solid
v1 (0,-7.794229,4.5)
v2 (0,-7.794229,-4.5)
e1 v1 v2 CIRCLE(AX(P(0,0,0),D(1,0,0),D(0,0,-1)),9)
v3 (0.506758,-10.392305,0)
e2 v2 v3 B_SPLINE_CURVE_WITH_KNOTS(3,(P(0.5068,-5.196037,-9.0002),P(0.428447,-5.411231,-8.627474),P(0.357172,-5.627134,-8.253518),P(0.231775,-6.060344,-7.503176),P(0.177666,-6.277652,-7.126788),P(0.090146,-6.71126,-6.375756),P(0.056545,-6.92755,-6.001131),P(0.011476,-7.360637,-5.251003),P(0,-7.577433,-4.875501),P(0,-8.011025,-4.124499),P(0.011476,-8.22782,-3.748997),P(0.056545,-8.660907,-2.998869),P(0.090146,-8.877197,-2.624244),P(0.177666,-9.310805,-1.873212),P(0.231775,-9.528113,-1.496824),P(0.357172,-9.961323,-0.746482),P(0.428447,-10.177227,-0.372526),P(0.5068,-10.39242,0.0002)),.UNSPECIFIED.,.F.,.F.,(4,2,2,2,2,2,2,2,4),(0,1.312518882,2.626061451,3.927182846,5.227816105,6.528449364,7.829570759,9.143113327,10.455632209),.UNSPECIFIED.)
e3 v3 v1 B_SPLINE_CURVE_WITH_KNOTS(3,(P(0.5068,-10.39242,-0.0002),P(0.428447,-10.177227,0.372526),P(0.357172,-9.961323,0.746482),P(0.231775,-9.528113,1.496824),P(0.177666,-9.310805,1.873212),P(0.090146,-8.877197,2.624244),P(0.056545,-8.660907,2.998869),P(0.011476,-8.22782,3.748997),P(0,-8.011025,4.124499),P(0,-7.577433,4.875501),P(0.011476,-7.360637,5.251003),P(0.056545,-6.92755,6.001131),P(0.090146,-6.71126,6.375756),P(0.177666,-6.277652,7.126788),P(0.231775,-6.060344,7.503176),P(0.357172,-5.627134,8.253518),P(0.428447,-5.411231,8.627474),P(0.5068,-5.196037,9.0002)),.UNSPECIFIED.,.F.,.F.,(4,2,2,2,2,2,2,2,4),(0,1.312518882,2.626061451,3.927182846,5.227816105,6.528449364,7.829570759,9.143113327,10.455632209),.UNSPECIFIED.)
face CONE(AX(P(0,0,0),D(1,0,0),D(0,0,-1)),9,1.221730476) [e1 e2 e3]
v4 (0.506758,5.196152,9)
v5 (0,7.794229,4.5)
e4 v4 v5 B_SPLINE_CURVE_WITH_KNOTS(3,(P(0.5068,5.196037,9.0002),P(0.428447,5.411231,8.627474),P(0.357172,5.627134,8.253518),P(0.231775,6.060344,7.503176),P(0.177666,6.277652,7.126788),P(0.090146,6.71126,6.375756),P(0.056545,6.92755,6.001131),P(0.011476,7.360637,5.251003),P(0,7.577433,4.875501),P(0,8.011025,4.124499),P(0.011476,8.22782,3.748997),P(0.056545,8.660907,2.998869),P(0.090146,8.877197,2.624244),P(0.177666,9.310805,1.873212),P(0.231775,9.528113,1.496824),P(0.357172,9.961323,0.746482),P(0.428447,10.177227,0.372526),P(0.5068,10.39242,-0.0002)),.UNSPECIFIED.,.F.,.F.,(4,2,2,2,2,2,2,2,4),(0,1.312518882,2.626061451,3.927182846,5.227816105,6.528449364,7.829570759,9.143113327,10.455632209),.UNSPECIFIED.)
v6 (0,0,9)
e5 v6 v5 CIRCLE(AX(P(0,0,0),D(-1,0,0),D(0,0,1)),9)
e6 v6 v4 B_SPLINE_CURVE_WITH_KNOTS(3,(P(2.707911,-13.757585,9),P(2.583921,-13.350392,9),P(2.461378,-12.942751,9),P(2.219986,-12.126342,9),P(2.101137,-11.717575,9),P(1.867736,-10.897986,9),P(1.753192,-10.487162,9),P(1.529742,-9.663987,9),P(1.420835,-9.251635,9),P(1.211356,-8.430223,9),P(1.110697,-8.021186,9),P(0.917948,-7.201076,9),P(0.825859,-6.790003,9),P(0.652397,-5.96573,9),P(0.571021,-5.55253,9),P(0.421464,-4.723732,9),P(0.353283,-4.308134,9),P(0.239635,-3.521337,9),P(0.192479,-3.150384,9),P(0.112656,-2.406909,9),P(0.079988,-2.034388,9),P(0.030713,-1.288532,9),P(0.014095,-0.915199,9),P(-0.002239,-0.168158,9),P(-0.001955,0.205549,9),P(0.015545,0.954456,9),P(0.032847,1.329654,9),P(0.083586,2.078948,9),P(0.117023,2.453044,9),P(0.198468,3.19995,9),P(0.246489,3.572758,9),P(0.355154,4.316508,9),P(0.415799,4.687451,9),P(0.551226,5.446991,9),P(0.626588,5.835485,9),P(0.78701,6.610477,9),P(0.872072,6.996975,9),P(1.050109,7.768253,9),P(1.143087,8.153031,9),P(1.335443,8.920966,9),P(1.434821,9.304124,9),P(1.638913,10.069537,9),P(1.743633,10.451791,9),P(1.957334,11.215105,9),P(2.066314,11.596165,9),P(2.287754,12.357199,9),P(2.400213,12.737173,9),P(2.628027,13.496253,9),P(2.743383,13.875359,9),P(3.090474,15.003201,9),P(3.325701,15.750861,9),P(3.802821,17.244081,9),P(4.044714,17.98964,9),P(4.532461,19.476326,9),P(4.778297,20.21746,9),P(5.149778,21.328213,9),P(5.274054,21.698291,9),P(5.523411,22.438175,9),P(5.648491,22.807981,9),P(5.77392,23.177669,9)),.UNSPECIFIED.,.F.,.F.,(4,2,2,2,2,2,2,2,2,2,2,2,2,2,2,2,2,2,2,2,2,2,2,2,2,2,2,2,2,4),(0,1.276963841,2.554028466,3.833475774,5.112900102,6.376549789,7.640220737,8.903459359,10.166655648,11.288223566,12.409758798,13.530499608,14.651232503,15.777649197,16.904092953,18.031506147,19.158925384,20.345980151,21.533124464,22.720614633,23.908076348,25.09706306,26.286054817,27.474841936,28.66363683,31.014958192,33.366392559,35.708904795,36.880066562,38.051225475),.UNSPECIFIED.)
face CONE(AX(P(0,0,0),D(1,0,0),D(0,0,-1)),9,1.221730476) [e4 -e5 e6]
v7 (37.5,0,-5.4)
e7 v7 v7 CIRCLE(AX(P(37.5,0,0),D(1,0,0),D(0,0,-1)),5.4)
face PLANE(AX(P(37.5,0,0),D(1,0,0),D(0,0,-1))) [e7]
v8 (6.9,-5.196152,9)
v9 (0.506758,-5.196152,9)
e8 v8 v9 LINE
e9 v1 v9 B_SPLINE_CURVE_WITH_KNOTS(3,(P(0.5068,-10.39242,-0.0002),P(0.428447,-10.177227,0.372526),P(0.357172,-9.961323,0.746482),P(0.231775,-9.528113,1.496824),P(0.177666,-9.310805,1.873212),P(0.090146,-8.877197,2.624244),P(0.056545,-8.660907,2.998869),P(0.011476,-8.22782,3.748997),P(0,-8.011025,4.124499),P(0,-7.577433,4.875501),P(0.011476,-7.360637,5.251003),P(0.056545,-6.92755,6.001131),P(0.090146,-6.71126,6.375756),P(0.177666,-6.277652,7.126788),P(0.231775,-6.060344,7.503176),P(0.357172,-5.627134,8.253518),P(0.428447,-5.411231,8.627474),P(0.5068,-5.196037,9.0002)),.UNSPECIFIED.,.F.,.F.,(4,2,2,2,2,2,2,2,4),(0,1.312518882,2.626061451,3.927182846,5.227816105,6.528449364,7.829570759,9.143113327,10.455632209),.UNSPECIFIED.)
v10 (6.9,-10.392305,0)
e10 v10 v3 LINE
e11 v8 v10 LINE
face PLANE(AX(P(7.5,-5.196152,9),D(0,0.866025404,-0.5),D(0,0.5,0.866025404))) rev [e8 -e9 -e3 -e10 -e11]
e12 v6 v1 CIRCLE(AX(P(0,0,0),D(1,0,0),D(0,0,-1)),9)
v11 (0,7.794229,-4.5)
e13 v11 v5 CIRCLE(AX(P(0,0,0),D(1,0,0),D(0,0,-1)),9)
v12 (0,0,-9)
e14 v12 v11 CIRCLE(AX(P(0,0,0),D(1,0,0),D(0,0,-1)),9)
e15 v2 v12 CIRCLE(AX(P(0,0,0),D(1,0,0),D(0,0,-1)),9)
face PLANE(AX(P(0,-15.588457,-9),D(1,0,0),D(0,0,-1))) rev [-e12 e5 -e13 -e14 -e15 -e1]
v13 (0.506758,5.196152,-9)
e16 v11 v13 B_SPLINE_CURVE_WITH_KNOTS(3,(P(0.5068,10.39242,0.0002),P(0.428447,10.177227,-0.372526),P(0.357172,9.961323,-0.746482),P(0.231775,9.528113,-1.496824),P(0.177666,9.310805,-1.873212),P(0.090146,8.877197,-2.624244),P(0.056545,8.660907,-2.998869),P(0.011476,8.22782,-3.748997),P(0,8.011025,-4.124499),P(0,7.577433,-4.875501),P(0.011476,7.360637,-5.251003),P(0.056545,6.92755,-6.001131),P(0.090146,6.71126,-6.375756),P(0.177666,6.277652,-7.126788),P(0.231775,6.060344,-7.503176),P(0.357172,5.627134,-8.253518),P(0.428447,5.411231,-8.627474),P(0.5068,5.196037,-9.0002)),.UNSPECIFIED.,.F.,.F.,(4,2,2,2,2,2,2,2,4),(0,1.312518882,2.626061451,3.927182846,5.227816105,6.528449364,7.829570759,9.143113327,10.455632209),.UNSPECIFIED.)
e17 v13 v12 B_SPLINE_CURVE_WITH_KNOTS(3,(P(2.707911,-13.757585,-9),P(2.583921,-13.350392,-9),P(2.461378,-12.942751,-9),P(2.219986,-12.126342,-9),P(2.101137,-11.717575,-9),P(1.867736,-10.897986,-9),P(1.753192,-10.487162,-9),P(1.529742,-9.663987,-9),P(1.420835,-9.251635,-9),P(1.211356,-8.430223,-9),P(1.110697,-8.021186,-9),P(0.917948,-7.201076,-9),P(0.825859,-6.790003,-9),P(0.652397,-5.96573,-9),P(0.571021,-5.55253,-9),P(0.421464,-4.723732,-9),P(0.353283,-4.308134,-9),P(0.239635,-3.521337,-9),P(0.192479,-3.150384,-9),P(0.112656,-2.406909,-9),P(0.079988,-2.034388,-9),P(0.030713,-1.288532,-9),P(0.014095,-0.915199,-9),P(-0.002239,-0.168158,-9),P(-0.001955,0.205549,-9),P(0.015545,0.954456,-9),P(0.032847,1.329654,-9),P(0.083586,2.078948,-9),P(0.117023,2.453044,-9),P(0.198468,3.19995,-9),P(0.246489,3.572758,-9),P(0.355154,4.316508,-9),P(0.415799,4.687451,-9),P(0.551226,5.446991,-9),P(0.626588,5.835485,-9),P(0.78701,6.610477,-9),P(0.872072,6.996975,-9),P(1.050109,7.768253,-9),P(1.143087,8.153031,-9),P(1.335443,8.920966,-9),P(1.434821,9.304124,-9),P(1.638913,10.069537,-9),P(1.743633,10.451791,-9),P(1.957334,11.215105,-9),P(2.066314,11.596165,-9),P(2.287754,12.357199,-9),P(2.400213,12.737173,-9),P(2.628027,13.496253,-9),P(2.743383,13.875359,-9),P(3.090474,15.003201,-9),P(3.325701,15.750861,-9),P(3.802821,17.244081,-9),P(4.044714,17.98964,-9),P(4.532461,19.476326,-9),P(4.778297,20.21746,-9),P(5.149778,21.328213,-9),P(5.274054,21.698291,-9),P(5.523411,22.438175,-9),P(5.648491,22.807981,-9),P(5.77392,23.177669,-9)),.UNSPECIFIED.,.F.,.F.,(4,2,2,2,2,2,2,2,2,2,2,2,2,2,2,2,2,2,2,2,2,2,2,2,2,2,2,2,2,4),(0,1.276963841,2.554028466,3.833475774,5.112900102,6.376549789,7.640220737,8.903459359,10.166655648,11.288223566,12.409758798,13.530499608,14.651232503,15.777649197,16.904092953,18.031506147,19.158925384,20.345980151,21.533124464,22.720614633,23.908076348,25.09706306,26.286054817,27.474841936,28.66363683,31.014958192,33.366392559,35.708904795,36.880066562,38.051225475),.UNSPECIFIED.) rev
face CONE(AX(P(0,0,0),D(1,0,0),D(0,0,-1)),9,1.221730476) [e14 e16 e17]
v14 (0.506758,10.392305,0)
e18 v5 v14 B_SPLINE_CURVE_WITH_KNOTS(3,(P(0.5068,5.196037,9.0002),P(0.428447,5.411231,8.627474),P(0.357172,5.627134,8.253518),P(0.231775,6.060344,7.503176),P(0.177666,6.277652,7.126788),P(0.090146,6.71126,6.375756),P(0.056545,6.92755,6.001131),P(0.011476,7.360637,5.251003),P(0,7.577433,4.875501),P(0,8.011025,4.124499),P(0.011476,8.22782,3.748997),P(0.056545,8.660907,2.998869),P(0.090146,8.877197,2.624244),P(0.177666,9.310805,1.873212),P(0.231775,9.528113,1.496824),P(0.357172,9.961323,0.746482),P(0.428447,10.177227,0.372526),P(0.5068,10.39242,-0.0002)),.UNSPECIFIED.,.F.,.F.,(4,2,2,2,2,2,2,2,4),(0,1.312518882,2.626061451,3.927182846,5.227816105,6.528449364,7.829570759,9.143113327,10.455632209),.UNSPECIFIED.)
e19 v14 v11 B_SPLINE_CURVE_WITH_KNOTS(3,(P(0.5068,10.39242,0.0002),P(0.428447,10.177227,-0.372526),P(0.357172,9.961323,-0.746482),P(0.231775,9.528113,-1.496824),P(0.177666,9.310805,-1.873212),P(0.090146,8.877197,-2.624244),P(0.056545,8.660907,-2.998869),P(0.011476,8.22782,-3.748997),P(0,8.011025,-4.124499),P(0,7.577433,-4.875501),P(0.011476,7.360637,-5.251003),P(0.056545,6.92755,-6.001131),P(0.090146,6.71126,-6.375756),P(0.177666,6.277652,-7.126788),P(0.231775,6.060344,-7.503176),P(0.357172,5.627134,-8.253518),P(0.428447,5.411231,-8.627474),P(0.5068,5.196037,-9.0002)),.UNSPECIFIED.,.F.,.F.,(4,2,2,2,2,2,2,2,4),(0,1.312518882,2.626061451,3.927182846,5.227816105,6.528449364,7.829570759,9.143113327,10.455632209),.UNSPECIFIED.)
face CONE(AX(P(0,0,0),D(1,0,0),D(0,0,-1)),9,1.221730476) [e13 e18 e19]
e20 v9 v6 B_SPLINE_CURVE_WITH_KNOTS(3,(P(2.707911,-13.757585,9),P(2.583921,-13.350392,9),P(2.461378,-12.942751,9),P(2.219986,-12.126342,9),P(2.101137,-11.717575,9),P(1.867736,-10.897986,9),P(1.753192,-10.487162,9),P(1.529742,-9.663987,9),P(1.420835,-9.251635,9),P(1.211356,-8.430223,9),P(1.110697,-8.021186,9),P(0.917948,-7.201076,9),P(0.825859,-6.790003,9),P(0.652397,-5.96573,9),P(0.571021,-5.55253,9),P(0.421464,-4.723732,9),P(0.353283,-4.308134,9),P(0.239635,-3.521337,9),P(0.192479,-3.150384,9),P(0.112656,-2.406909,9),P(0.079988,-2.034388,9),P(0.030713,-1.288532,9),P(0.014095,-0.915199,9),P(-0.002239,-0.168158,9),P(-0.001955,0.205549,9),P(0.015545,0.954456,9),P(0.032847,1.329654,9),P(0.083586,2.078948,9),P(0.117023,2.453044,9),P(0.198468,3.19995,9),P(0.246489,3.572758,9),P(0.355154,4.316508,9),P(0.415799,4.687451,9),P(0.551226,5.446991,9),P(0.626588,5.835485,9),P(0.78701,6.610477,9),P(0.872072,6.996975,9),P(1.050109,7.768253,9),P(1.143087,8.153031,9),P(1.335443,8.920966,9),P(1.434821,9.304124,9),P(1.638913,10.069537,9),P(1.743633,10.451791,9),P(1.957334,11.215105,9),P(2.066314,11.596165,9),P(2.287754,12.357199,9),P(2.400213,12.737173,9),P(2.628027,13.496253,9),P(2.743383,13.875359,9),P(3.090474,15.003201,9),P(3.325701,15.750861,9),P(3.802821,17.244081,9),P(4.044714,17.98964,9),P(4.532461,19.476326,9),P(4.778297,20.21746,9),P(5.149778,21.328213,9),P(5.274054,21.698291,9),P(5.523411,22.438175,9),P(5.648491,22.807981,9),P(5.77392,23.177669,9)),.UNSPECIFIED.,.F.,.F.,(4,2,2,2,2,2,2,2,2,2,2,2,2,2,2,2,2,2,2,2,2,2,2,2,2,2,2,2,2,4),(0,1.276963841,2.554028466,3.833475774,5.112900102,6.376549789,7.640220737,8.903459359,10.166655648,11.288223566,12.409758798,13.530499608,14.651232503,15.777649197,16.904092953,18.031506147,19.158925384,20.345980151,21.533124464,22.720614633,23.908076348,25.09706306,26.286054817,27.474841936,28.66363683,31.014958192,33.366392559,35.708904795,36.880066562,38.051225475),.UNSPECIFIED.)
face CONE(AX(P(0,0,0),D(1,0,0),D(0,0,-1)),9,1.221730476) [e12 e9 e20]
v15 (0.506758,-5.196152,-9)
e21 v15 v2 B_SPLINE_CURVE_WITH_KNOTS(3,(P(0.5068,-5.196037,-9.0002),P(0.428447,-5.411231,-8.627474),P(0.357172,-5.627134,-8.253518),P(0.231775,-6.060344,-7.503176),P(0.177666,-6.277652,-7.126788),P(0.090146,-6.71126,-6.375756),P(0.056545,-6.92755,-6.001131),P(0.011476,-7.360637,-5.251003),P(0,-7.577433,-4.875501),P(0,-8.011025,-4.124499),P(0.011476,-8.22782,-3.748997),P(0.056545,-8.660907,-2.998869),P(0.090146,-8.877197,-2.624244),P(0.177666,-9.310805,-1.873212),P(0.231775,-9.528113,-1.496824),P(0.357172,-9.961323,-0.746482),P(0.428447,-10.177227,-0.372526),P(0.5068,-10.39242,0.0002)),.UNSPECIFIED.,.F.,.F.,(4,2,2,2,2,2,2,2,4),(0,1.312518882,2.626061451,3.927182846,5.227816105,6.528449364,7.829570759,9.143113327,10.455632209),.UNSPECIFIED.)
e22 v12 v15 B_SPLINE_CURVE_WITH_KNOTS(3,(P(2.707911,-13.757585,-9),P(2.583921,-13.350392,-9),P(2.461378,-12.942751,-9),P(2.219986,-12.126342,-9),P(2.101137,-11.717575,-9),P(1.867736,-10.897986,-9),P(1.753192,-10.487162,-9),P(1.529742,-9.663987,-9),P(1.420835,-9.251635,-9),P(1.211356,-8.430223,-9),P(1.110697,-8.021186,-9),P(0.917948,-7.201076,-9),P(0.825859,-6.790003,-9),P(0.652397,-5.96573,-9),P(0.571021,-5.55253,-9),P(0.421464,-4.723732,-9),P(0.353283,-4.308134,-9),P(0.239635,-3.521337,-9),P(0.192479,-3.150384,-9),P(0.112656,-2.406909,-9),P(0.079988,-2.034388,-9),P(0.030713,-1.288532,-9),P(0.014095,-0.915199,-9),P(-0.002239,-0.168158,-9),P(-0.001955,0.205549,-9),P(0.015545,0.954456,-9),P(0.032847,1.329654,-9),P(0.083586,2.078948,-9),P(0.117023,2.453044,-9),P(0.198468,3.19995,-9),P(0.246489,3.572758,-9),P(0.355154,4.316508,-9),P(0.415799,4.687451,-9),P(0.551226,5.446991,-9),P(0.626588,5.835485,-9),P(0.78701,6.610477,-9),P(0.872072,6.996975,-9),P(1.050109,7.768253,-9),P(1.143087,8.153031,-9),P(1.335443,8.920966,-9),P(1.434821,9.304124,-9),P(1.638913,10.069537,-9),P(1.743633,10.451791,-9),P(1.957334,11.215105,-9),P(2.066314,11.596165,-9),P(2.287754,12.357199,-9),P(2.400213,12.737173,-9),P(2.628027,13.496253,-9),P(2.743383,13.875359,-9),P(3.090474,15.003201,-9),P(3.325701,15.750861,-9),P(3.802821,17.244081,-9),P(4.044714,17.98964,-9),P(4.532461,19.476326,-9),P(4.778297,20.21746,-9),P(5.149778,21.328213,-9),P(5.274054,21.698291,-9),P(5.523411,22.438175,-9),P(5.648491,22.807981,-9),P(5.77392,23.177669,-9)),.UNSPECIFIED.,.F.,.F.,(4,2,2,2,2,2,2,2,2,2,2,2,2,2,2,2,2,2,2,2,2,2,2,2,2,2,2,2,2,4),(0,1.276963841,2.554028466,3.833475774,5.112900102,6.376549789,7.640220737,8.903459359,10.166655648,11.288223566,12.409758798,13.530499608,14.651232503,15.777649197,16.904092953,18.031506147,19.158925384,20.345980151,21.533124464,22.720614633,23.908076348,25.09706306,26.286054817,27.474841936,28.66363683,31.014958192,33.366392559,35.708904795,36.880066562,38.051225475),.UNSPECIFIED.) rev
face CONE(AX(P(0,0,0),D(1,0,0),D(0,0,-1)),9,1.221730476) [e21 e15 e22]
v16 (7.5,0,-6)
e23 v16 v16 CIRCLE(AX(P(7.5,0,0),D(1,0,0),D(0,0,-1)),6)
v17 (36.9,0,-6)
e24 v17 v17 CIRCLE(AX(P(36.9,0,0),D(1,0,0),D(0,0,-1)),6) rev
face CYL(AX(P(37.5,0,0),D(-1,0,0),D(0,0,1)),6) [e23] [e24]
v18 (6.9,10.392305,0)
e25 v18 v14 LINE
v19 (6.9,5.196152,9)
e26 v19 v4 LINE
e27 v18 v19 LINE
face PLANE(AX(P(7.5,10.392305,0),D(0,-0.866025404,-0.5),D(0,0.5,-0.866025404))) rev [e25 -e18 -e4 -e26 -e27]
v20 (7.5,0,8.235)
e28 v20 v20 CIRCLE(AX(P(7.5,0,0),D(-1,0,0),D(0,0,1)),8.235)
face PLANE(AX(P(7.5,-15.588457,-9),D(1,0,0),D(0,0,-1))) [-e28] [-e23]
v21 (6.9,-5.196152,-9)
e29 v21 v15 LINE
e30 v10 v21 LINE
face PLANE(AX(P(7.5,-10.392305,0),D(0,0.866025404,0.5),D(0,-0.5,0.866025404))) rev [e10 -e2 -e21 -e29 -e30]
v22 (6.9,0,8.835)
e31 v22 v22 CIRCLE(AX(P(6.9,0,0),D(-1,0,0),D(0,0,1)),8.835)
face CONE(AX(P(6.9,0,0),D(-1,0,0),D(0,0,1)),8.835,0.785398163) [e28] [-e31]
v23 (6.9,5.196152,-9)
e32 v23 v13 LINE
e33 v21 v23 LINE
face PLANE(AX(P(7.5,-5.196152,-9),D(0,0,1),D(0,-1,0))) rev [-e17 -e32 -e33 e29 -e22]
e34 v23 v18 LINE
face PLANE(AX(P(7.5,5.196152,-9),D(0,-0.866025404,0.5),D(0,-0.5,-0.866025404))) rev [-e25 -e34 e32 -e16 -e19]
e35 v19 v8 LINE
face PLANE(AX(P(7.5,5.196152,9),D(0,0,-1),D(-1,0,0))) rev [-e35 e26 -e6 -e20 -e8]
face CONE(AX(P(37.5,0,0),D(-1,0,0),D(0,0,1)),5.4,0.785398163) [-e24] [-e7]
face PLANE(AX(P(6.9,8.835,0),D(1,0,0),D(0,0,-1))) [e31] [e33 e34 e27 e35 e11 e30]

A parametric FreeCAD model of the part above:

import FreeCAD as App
import Part
import Sketcher

V = App.Vector
Q = App.Units.Quantity


def edges_at(feature, points):
    """Names of the edges that pass closest to the given points."""
    edges = feature.Shape.Edges
    near = lambda p: min(range(len(edges)), key=lambda i: edges[i].distToShape(Part.Vertex(*p))[0])
    return sorted({f"Edge{near(p) + 1}" for p in points})


def add_polygon(sketch, points):
    """Adds a closed chain of lines whose ends are joined by coincident constraints."""
    first, n = sketch.GeometryCount, len(points)
    for a, b in zip(points, points[1:] + points[:1]):
        sketch.addGeometry(Part.LineSegment(App.Vector(*a, 0), App.Vector(*b, 0)), False)
    for i in range(n):
        sketch.addConstraint(Sketcher.Constraint("Coincident", first + i, 2, first + (i + 1) % n, 1))

doc = App.newDocument("Part")
body = doc.addObject("PartDesign::Body", "Body")

sketch1 = body.newObject("Sketcher::SketchObject", "Sketch")
sketch1.AttachmentSupport = (doc.getObject("YZ_Plane"), [""])
sketch1.MapMode = "FlatFace"
add_polygon(sketch1, [(-10, 0), (-5, -9), (5, -9), (10, 0), (5, 9), (-5, 9)])
sketch1.addConstraint([
    Sketcher.Constraint("Horizontal", 1),
    Sketcher.Constraint("Horizontal", 4),
    Sketcher.Constraint("Symmetric", 0, 2, 3, 2, -1, 1),
    Sketcher.Constraint("Symmetric", 2, 2, 5, 2, -1, 1),
    Sketcher.Constraint("PointOnObject", 2, 2, -1),
    Sketcher.Constraint("Parallel", 2, 5),
    Sketcher.Constraint("Vertical", 1, 2, 3, 2),
    Sketcher.Constraint("Angle", 0, Q("-60 deg")),
    Sketcher.Constraint("DistanceY", 0, 2, -1, 1, Q("9 mm")),
    Sketcher.Constraint("DistanceX", 1, 1, 1, 2, Q("10.392305 mm")),
])
pad1 = body.newObject("PartDesign::Pad", "Pad")
pad1.Profile = sketch1
pad1.Length = 7.5

sketch2 = body.newObject("Sketcher::SketchObject", "Sketch001")
sketch2.AttachmentSupport = (doc.getObject("XY_Plane"), [""])
sketch2.MapMode = "FlatFace"
add_polygon(sketch2, [(7.5, 8.2), (7.5, 10.4), (6.9, 10.4), (6.9, 8.8)])
sketch2.addConstraint([
    Sketcher.Constraint("Vertical", 0),
    Sketcher.Constraint("Horizontal", 1),
    Sketcher.Constraint("Vertical", 2),
    Sketcher.Constraint("Angle", 3, Q("-45 deg")),
    Sketcher.Constraint("DistanceX", 1, 2, 1, 1, Q("0.6 mm")),
    Sketcher.Constraint("DistanceX", -1, 1, 0, 2, Q("7.5 mm")),
    Sketcher.Constraint("DistanceY", -1, 1, 2, 2, Q("8.835 mm")),
    Sketcher.Constraint("DistanceY", 0, 1, 0, 2, Q("2.157305 mm")),
])
groove = body.newObject("PartDesign::Groove", "Groove")
groove.Profile = sketch2
groove.ReferenceAxis = (sketch2, ["H_Axis"])
groove.Angle = 360

sketch3 = body.newObject("Sketcher::SketchObject", "Sketch002")
sketch3.AttachmentSupport = (doc.getObject("XY_Plane"), [""])
sketch3.MapMode = "FlatFace"
add_polygon(sketch3, [(0.5, 10.4), (0, 10.4), (0, 9)])
sketch3.addConstraint([
    Sketcher.Constraint("Horizontal", 0),
    Sketcher.Constraint("Vertical", 1),
    Sketcher.Constraint("PointOnObject", 0, 2, -2),
    Sketcher.Constraint("Angle", 2, Q("70 deg")),
    Sketcher.Constraint("DistanceY", -1, 1, 1, 2, Q("9 mm")),
    Sketcher.Constraint("Distance", 2, Q("1.48166 mm")),
])
groove2 = body.newObject("PartDesign::Groove", "Groove001")
groove2.Profile = sketch3
groove2.ReferenceAxis = (sketch3, ["H_Axis"])
groove2.Angle = 360

sketch4 = body.newObject("Sketcher::SketchObject", "Sketch003")
sketch4.AttachmentSupport = (doc.getObject("YZ_Plane"), [""])
sketch4.MapMode = "FlatFace"
sketch4.AttachmentOffset = App.Placement(V(0, 0, 7.5), App.Rotation())
sketch4.addGeometry(Part.Circle(V(0, 0, 0), V(0, 0, 1), 6), False)
sketch4.addConstraint([
    Sketcher.Constraint("Coincident", 0, 3, -1, 1),
    Sketcher.Constraint("Diameter", 0, Q("12 mm")),
])
pad2 = body.newObject("PartDesign::Pad", "Pad001")
pad2.Profile = sketch4
pad2.Length = 30
doc.recompute()

chamfer = body.newObject("PartDesign::Chamfer", "Chamfer")
chamfer.Base = (pad2, edges_at(pad2, [(37.5, 0, 6)]))
chamfer.Size = 0.6

doc.recompute()
